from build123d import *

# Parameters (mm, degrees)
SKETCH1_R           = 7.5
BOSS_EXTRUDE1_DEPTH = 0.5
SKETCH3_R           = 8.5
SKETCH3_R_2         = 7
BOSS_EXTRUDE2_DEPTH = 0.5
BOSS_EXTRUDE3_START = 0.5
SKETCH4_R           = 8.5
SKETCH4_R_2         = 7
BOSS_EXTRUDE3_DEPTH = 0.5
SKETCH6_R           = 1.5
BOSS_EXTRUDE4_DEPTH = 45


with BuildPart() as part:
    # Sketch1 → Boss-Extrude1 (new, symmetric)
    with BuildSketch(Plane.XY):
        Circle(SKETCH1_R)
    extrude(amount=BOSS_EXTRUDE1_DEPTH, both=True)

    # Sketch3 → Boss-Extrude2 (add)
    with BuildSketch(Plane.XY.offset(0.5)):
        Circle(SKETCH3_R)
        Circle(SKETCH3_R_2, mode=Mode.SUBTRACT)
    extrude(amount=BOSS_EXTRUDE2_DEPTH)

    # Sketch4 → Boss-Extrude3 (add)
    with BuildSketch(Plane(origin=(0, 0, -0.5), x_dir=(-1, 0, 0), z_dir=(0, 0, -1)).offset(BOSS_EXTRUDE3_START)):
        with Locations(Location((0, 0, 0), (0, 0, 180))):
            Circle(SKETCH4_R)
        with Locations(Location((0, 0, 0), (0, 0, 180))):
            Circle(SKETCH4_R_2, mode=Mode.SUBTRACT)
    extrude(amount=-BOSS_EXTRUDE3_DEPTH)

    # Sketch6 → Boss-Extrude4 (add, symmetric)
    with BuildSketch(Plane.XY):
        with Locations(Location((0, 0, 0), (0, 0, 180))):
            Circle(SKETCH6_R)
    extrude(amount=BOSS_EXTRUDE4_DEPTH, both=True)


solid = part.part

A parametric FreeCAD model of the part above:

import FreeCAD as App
import Part
import Sketcher
from FreeCAD import Vector
Q = App.Units.Quantity

doc = App.newDocument("Part")
body = doc.addObject("PartDesign::Body", "Body")

# Sketch on XY plane
sketch1 = body.newObject("Sketcher::SketchObject", "Sketch")
sketch1.AttachmentSupport = (doc.getObject("XY_Plane"), [""])
sketch1.MapMode = "FlatFace"
sketch1.addGeometry(Part.Circle(Vector(0, 0, 0), Vector(0, 0, 1), 7.5), False)
sketch1.addConstraint(Sketcher.Constraint("Coincident", 0, 3, -1, 1))
sketch1.addConstraint(Sketcher.Constraint("Diameter", 0, Q("15 mm")))
pad1 = body.newObject("PartDesign::Pad", "Pad")
pad1.Profile = sketch1
pad1.Length = 1
pad1.Midplane = True

# Sketch on XY plane
sketch2 = body.newObject("Sketcher::SketchObject", "Sketch001")
sketch2.AttachmentSupport = (doc.getObject("XY_Plane"), [""])
sketch2.MapMode = "FlatFace"
sketch2.AttachmentOffset = App.Placement(Vector(0, 0, 0.5), App.Rotation())
sketch2.addGeometry(Part.Circle(Vector(0, 0, 0), Vector(0, 0, 1), 8.5), False)
sketch2.addGeometry(Part.Circle(Vector(0, 0, 0), Vector(0, 0, 1), 7), False)
sketch2.addConstraint(Sketcher.Constraint("Coincident", 0, 3, -1, 1))
sketch2.addConstraint(Sketcher.Constraint("Coincident", 1, 3, -1, 1))
sketch2.addConstraint(Sketcher.Constraint("Diameter", 0, Q("17 mm")))
sketch2.addConstraint(Sketcher.Constraint("Diameter", 1, Q("14 mm")))
pad2 = body.newObject("PartDesign::Pad", "Pad001")
pad2.Profile = sketch2
pad2.Length = 0.5

# Sketch on XY plane
sketch3 = body.newObject("Sketcher::SketchObject", "Sketch002")
sketch3.AttachmentSupport = (doc.getObject("XY_Plane"), [""])
sketch3.MapMode = "FlatFace"
sketch3.AttachmentOffset = App.Placement(Vector(0, 0, -1), App.Rotation())
sketch3.addGeometry(Part.Circle(Vector(0, 0, 0), Vector(0, 0, 1), 8.5), False)
sketch3.addGeometry(Part.Circle(Vector(0, 0, 0), Vector(0, 0, 1), 7), False)
sketch3.addConstraint(Sketcher.Constraint("Coincident", 0, 3, -1, 1))
sketch3.addConstraint(Sketcher.Constraint("Coincident", 1, 3, -1, 1))
sketch3.addConstraint(Sketcher.Constraint("Diameter", 0, Q("17 mm")))
sketch3.addConstraint(Sketcher.Constraint("Diameter", 1, Q("14 mm")))
pad3 = body.newObject("PartDesign::Pad", "Pad002")
pad3.Profile = sketch3
pad3.Length = 0.5

# Sketch on XY plane
sketch4 = body.newObject("Sketcher::SketchObject", "Sketch003")
sketch4.AttachmentSupport = (doc.getObject("XY_Plane"), [""])
sketch4.MapMode = "FlatFace"
sketch4.addGeometry(Part.Circle(Vector(0, 0, 0), Vector(0, 0, 1), 1.5), False)
sketch4.addConstraint(Sketcher.Constraint("Coincident", 0, 3, -1, 1))
sketch4.addConstraint(Sketcher.Constraint("Diameter", 0, Q("3 mm")))
pad4 = body.newObject("PartDesign::Pad", "Pad003")
pad4.Profile = sketch4
pad4.Length = 90
pad4.Midplane = True

doc.recompute()
